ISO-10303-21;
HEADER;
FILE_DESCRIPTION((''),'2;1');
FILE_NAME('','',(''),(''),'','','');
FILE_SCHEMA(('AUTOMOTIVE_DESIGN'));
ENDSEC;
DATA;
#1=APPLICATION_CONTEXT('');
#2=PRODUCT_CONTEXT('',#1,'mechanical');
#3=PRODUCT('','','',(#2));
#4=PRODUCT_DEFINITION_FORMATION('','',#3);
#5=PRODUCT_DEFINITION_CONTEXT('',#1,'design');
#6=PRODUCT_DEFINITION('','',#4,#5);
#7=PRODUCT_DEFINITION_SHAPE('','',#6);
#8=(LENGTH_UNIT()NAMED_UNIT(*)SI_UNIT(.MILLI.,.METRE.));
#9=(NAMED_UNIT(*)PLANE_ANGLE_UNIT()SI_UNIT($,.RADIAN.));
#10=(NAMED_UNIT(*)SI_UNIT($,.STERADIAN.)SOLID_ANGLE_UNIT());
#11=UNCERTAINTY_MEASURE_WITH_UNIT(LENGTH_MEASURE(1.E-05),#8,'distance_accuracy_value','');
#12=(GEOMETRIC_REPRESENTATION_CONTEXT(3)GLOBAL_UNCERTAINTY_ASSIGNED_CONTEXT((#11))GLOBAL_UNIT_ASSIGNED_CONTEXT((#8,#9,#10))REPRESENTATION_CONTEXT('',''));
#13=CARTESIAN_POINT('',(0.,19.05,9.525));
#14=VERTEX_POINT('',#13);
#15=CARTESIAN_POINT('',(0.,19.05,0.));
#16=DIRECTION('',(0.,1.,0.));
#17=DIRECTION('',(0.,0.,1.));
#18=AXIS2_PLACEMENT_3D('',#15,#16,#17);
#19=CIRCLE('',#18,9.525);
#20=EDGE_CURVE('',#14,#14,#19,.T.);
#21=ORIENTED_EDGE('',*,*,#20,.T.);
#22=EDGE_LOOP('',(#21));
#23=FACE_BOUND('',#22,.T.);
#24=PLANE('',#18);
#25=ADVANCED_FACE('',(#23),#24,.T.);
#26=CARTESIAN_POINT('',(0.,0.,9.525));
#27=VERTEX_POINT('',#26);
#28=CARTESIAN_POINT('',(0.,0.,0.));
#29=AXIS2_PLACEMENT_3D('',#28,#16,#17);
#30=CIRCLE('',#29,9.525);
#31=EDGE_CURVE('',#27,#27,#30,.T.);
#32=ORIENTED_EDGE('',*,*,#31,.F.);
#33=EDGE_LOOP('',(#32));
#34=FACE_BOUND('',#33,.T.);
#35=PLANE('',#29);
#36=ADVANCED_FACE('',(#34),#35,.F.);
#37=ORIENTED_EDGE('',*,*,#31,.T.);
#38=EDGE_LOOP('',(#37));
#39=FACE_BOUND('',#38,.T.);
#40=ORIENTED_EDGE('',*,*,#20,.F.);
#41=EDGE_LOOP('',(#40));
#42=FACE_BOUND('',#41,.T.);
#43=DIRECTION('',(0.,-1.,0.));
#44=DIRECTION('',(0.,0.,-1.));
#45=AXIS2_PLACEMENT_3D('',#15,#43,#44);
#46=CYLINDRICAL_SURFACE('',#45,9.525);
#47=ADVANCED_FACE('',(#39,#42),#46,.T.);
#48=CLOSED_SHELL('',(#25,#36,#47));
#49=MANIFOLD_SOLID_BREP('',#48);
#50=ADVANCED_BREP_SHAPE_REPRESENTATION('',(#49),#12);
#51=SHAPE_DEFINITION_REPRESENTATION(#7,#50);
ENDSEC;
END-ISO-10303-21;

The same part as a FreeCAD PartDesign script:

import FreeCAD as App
import Part
import Sketcher

V = App.Vector
Q = App.Units.Quantity

doc = App.newDocument("Part")
body = doc.addObject("PartDesign::Body", "Body")

sketch1 = doc.addObject("Sketcher::SketchObject", "Sketch")
body.addObject(sketch1)
sketch1.AttachmentSupport = (doc.XZ_Plane, [""])
sketch1.MapMode = "FlatFace"
sketch1.addGeometry(Part.Circle(V(0, 0, 0), V(0, 0, 1), 10), False)
sketch1.addConstraint([
    Sketcher.Constraint("Coincident", 0, 3, -1, 1),
    Sketcher.Constraint("Diameter", 0, Q("0.75 in")),
])
pad1 = doc.addObject("PartDesign::Pad", "Pad")
body.addObject(pad1)
pad1.Profile = sketch1
pad1.Length = Q("0.75 in")
pad1.Reversed = True

doc.recompute()
